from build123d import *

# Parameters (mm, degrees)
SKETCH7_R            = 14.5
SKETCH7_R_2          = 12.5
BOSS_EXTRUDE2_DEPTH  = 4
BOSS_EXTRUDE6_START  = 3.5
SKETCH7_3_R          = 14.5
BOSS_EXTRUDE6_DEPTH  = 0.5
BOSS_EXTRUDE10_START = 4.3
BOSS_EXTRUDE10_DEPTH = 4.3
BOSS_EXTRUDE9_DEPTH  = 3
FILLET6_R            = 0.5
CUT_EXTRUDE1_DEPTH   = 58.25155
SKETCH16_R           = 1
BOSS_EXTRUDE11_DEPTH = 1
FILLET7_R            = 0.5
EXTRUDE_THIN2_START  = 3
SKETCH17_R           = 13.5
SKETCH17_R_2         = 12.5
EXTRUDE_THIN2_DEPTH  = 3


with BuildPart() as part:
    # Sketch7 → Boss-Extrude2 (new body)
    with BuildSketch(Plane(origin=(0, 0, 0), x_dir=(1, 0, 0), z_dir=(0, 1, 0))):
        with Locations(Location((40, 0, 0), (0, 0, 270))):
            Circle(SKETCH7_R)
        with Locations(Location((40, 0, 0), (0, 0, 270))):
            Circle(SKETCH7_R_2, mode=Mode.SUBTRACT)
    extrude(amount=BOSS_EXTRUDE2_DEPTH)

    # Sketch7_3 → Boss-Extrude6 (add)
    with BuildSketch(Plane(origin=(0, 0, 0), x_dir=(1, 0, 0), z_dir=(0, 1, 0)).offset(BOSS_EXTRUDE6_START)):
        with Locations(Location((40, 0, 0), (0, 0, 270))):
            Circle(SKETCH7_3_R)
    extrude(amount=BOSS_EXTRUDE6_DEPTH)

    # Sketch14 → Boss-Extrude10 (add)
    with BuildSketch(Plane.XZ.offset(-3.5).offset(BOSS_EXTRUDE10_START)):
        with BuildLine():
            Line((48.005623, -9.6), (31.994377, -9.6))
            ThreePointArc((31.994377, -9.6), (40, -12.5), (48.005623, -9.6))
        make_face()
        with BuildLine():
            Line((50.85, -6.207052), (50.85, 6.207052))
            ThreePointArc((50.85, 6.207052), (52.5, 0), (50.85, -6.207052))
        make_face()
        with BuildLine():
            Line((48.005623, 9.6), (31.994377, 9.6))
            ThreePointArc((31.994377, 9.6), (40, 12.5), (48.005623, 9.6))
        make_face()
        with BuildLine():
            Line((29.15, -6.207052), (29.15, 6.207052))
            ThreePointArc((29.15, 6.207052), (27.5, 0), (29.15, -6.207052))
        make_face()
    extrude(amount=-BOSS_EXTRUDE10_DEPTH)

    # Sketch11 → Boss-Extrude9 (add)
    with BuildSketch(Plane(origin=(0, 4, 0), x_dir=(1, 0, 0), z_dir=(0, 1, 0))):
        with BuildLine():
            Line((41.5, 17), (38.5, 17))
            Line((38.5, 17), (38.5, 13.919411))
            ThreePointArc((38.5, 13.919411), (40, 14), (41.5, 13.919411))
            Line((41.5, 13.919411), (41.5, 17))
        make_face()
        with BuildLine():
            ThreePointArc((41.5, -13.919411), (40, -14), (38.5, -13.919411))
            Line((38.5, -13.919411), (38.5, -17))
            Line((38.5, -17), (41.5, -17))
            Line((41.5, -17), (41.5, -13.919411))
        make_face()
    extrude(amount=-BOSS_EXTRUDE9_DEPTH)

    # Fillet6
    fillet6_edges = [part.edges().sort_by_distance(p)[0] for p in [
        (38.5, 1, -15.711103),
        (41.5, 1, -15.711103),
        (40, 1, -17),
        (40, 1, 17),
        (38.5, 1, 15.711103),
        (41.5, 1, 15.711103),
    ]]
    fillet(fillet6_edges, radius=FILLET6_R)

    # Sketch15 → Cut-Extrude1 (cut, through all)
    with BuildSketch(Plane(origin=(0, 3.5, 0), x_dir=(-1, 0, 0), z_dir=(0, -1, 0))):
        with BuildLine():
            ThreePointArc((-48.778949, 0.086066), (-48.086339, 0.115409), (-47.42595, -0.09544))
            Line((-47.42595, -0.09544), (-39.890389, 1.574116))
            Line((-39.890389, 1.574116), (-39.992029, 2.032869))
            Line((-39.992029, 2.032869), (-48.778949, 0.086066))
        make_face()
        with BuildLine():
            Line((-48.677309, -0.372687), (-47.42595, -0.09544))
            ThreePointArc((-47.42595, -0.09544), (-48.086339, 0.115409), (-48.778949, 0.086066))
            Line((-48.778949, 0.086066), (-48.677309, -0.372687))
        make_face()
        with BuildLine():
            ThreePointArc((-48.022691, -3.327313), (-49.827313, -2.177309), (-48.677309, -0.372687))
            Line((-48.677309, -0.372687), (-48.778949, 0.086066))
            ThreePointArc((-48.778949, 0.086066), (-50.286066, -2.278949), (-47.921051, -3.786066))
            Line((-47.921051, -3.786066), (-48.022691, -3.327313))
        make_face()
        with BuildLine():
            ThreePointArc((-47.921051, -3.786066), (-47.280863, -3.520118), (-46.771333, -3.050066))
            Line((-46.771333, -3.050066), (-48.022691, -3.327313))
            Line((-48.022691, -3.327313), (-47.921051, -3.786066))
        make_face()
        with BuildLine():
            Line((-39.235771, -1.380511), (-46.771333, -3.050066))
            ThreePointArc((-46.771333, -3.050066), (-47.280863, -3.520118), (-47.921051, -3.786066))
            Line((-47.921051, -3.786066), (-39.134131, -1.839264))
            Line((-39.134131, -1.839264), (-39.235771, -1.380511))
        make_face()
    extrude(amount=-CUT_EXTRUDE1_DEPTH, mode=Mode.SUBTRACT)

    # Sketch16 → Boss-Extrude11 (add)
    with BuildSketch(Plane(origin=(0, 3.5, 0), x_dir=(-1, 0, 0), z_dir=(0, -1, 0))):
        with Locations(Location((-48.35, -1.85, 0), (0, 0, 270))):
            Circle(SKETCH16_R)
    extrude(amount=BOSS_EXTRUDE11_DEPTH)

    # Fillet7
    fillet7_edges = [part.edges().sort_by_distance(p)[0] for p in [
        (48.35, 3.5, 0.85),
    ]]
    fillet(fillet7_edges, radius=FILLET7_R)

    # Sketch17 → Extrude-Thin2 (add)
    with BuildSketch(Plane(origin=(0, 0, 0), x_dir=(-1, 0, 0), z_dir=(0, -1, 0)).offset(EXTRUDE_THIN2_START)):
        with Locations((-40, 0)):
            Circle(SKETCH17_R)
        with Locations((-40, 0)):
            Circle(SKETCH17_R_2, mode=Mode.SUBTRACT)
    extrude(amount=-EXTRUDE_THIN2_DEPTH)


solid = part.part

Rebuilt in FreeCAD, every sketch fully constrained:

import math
import FreeCAD as App
import Part
import Sketcher

V = App.Vector
Q = App.Units.Quantity


def edges_at(feature, points):
    """Names of the edges that pass closest to the given points."""
    edges = feature.Shape.Edges
    near = lambda p: min(range(len(edges)), key=lambda i: edges[i].distToShape(Part.Vertex(*p))[0])
    return sorted({f"Edge{near(p) + 1}" for p in points})

doc = App.newDocument("Part")
body = doc.addObject("PartDesign::Body", "Body")

# Sketch on XZ plane
sketch1 = body.newObject("Sketcher::SketchObject", "Sketch")
sketch1.AttachmentSupport = (doc.getObject("XZ_Plane"), [""])
sketch1.MapMode = "FlatFace"
sketch1.addGeometry(Part.Circle(V(40, 0, 0), V(0, 0, 1), 14), False)
sketch1.addGeometry(Part.Circle(V(40, 0, 0), V(0, 0, 1), 12), False)
sketch1.addConstraint(Sketcher.Constraint("Coincident", 1, 3, 0, 3))
sketch1.addConstraint(Sketcher.Constraint("PointOnObject", 0, 3, -1))
sketch1.addConstraint(Sketcher.Constraint("Diameter", 0, Q("29 mm")))
sketch1.addConstraint(Sketcher.Constraint("Diameter", 1, Q("25 mm")))
sketch1.addConstraint(Sketcher.Constraint("DistanceX", -1, 1, 0, 3, Q("40 mm")))
pad1 = body.newObject("PartDesign::Pad", "Pad")
pad1.Profile = sketch1
pad1.Length = 4
pad1.Reversed = True

# Sketch on XZ plane
sketch2 = body.newObject("Sketcher::SketchObject", "Sketch001")
sketch2.AttachmentSupport = (doc.getObject("XZ_Plane"), [""])
sketch2.MapMode = "FlatFace"
sketch2.AttachmentOffset = App.Placement(V(0, 0, -3.5), App.Rotation())
sketch2.addGeometry(Part.Circle(V(40, 0, 0), V(0, 0, 1), 14), False)
sketch2.addConstraint(Sketcher.Constraint("PointOnObject", 0, 3, -1))
sketch2.addConstraint(Sketcher.Constraint("Diameter", 0, Q("29 mm")))
sketch2.addConstraint(Sketcher.Constraint("DistanceX", -1, 1, 0, 3, Q("40 mm")))
pad2 = body.newObject("PartDesign::Pad", "Pad001")
pad2.Profile = sketch2
pad2.Length = 0.5
pad2.Reversed = True

# Sketch on XZ plane
sketch3 = body.newObject("Sketcher::SketchObject", "Sketch002")
sketch3.AttachmentSupport = (doc.getObject("XZ_Plane"), [""])
sketch3.MapMode = "FlatFace"
sketch3.AttachmentOffset = App.Placement(V(0, 0, 0.8), App.Rotation())
sketch3.addGeometry(Part.LineSegment(V(48, -10, 0), V(32, -10, 0)), False)
sketch3.addGeometry(Part.ArcOfCircle(Part.Circle(V(40, 0, 0), V(0, 0, 1), 12), math.radians(-130), math.radians(-50)), False)
sketch3.addGeometry(Part.LineSegment(V(51, 6, 0), V(51, -6, 0)), False)
sketch3.addGeometry(Part.ArcOfCircle(Part.Circle(V(40, 0, 0), V(0, 0, 1), 12), math.radians(-30), math.radians(30)), False)
sketch3.addGeometry(Part.LineSegment(V(32, 10, 0), V(48, 10, 0)), False)
sketch3.addGeometry(Part.ArcOfCircle(Part.Circle(V(40, 0, 0), V(0, 0, 1), 12), math.radians(50), math.radians(130)), False)
sketch3.addGeometry(Part.LineSegment(V(29, -6, 0), V(29, 6, 0)), False)
sketch3.addGeometry(Part.ArcOfCircle(Part.Circle(V(40, 0, 0), V(0, 0, 1), 12), math.radians(150), math.radians(210)), False)
sketch3.addConstraint(Sketcher.Constraint("Coincident", 0, 1, 1, 2))
sketch3.addConstraint(Sketcher.Constraint("Coincident", 1, 1, 0, 2))
sketch3.addConstraint(Sketcher.Constraint("Coincident", 2, 1, 3, 2))
sketch3.addConstraint(Sketcher.Constraint("Coincident", 3, 1, 2, 2))
sketch3.addConstraint(Sketcher.Constraint("Coincident", 4, 1, 5, 2))
sketch3.addConstraint(Sketcher.Constraint("Coincident", 5, 1, 4, 2))
sketch3.addConstraint(Sketcher.Constraint("Coincident", 6, 1, 7, 2))
sketch3.addConstraint(Sketcher.Constraint("Coincident", 7, 1, 6, 2))
sketch3.addConstraint(Sketcher.Constraint("Horizontal", 0))
sketch3.addConstraint(Sketcher.Constraint("Vertical", 2))
sketch3.addConstraint(Sketcher.Constraint("Horizontal", 4))
sketch3.addConstraint(Sketcher.Constraint("Vertical", 6))
sketch3.addConstraint(Sketcher.Constraint("Coincident", 3, 3, 1, 3))
sketch3.addConstraint(Sketcher.Constraint("Coincident", 5, 3, 1, 3))
sketch3.addConstraint(Sketcher.Constraint("Coincident", 7, 3, 1, 3))
sketch3.addConstraint(Sketcher.Constraint("Equal", 1, 3))
sketch3.addConstraint(Sketcher.Constraint("Equal", 3, 5))
sketch3.addConstraint(Sketcher.Constraint("Equal", 5, 7))
sketch3.addConstraint(Sketcher.Constraint("Symmetric", 1, 1, 4, 1, -1))
sketch3.addConstraint(Sketcher.Constraint("Horizontal", 3, 1, 6, 1))
sketch3.addConstraint(Sketcher.Constraint("Radius", 1, Q("12.5 mm")))
sketch3.addConstraint(Sketcher.Constraint("DistanceX", -1, 1, 1, 3, Q("40 mm")))
sketch3.addConstraint(Sketcher.Constraint("DistanceY", 0, 1, -1, 1, Q("9.6 mm")))
sketch3.addConstraint(Sketcher.Constraint("DistanceX", -1, 1, 2, 1, Q("50.85 mm")))
pad3 = body.newObject("PartDesign::Pad", "Pad002")
pad3.Profile = sketch3
pad3.Length = 4.3
pad3.Reversed = True

# Sketch on XZ plane
sketch4 = body.newObject("Sketcher::SketchObject", "Sketch003")
sketch4.AttachmentSupport = (doc.getObject("XZ_Plane"), [""])
sketch4.MapMode = "FlatFace"
sketch4.AttachmentOffset = App.Placement(V(0, 0, -4), App.Rotation())
sketch4.addGeometry(Part.LineSegment(V(41.5, -17, 0), V(38.5, -17, 0)), False)
sketch4.addGeometry(Part.LineSegment(V(38.5, -17, 0), V(38.5, -13.9, 0)), False)
sketch4.addGeometry(Part.ArcOfCircle(Part.Circle(V(40, 0, 0), V(0, 0, 1), 14), math.radians(-96.15), math.radians(-83.85)), False)
sketch4.addGeometry(Part.LineSegment(V(41.5, -13.9, 0), V(41.5, -17, 0)), False)
sketch4.addGeometry(Part.ArcOfCircle(Part.Circle(V(40, 0, 0), V(0, 0, 1), 14), math.radians(83.85), math.radians(96.15)), False)
sketch4.addGeometry(Part.LineSegment(V(38.5, 13.9, 0), V(38.5, 17, 0)), False)
sketch4.addGeometry(Part.LineSegment(V(38.5, 17, 0), V(41.5, 17, 0)), False)
sketch4.addGeometry(Part.LineSegment(V(41.5, 17, 0), V(41.5, 13.9, 0)), False)
sketch4.addConstraint(Sketcher.Constraint("Coincident", 0, 2, 1, 1))
sketch4.addConstraint(Sketcher.Constraint("Coincident", 1, 2, 2, 1))
sketch4.addConstraint(Sketcher.Constraint("Coincident", 2, 2, 3, 1))
sketch4.addConstraint(Sketcher.Constraint("Coincident", 3, 2, 0, 1))
sketch4.addConstraint(Sketcher.Constraint("Coincident", 4, 2, 5, 1))
sketch4.addConstraint(Sketcher.Constraint("Coincident", 5, 2, 6, 1))
sketch4.addConstraint(Sketcher.Constraint("Coincident", 6, 2, 7, 1))
sketch4.addConstraint(Sketcher.Constraint("Coincident", 7, 2, 4, 1))
sketch4.addConstraint(Sketcher.Constraint("Horizontal", 0))
sketch4.addConstraint(Sketcher.Constraint("Vertical", 1))
sketch4.addConstraint(Sketcher.Constraint("Vertical", 3))
sketch4.addConstraint(Sketcher.Constraint("Vertical", 5))
sketch4.addConstraint(Sketcher.Constraint("Horizontal", 6))
sketch4.addConstraint(Sketcher.Constraint("Vertical", 7))
sketch4.addConstraint(Sketcher.Constraint("Equal", 2, 4))
sketch4.addConstraint(Sketcher.Constraint("Symmetric", 2, 3, 4, 3, -1))
sketch4.addConstraint(Sketcher.Constraint("Symmetric", 0, 2, 5, 2, -1))
sketch4.addConstraint(Sketcher.Constraint("Horizontal", 1, 2, 2, 2))
sketch4.addConstraint(Sketcher.Constraint("Horizontal", 4, 2, 7, 2))
sketch4.addConstraint(Sketcher.Constraint("DistanceX", 0, 2, 0, 1, Q("3 mm")))
sketch4.addConstraint(Sketcher.Constraint("DistanceX", -1, 1, 2, 3, Q("40 mm")))
sketch4.addConstraint(Sketcher.Constraint("DistanceY", 0, 2, -1, 1, Q("17 mm")))
sketch4.addConstraint(Sketcher.Constraint("Radius", 2, Q("14.000016 mm")))
sketch4.addConstraint(Sketcher.Constraint("DistanceY", 1, 1, 1, 2, Q("3.080589 mm")))
pad4 = body.newObject("PartDesign::Pad", "Pad003")
pad4.Profile = sketch4
pad4.Length = 3
doc.recompute()

fillet = body.newObject("PartDesign::Fillet", "Fillet")
fillet.Base = (pad4, edges_at(pad4, [
    (38.5, 1, -15.711),
    (41.5, 1, -15.711),
    (40, 1, -17),
    (40, 1, 17),
    (38.5, 1, 15.711),
    (41.5, 1, 15.711),
]))
fillet.Radius = 0.5

# Sketch on XZ plane
sketch5 = body.newObject("Sketcher::SketchObject", "Sketch004")
sketch5.AttachmentSupport = (doc.getObject("XZ_Plane"), [""])
sketch5.MapMode = "FlatFace"
sketch5.AttachmentOffset = App.Placement(V(0, 0, -3.5), App.Rotation())
sketch5.addGeometry(Part.LineSegment(V(47.43, 0.1, 0), V(39.89, -1.57, 0)), False)
sketch5.addGeometry(Part.LineSegment(V(39.89, -1.57, 0), V(39.99, -2.03, 0)), False)
sketch5.addGeometry(Part.LineSegment(V(39.99, -2.03, 0), V(48.78, -0.09, 0)), False)
sketch5.addGeometry(Part.ArcOfCircle(Part.Circle(V(48.35, 1.85, 0), V(0, 0, 1), 1.98), math.radians(-78), math.radians(102)), False)
sketch5.addGeometry(Part.LineSegment(V(47.92, 3.79, 0), V(39.13, 1.84, 0)), False)
sketch5.addGeometry(Part.LineSegment(V(39.13, 1.84, 0), V(39.24, 1.38, 0)), False)
sketch5.addGeometry(Part.LineSegment(V(39.24, 1.38, 0), V(46.77, 3.05, 0)), False)
sketch5.addGeometry(Part.LineSegment(V(46.77, 3.05, 0), V(48.02, 3.33, 0)), False)
sketch5.addGeometry(Part.ArcOfCircle(Part.Circle(V(48.35, 1.85, 0), V(0, 0, 1), 1.51), math.radians(-78), math.radians(102)), False)
sketch5.addGeometry(Part.LineSegment(V(48.68, 0.37, 0), V(47.43, 0.1, 0)), False)
sketch5.addConstraint(Sketcher.Constraint("Coincident", 0, 2, 1, 1))
sketch5.addConstraint(Sketcher.Constraint("Coincident", 1, 2, 2, 1))
sketch5.addConstraint(Sketcher.Constraint("Tangent", 2, 2, 3, 1))
sketch5.addConstraint(Sketcher.Constraint("Tangent", 3, 2, 4, 1))
sketch5.addConstraint(Sketcher.Constraint("Coincident", 4, 2, 5, 1))
sketch5.addConstraint(Sketcher.Constraint("Coincident", 5, 2, 6, 1))
sketch5.addConstraint(Sketcher.Constraint("Coincident", 6, 2, 7, 1))
sketch5.addConstraint(Sketcher.Constraint("Tangent", 7, 2, 8, 2))
sketch5.addConstraint(Sketcher.Constraint("Tangent", 8, 1, 9, 1))
sketch5.addConstraint(Sketcher.Constraint("Coincident", 9, 2, 0, 1))
sketch5.addConstraint(Sketcher.Constraint("Coincident", 8, 3, 3, 3))
sketch5.addConstraint(Sketcher.Constraint("Perpendicular", 0, 1))
sketch5.addConstraint(Sketcher.Constraint("Perpendicular", 1, 2))
sketch5.addConstraint(Sketcher.Constraint("Parallel", 2, 4))
sketch5.addConstraint(Sketcher.Constraint("Perpendicular", 4, 5))
sketch5.addConstraint(Sketcher.Constraint("Perpendicular", 5, 6))
sketch5.addConstraint(Sketcher.Constraint("Parallel", 6, 7))
sketch5.addConstraint(Sketcher.Constraint("Parallel", 7, 9))
sketch5.addConstraint(Sketcher.Constraint("Equal", 2, 4))
sketch5.addConstraint(Sketcher.Constraint("Equal", 0, 6))
sketch5.addConstraint(Sketcher.Constraint("Distance", 2, Q("9 mm")))
sketch5.addConstraint(Sketcher.Constraint("DistanceX", -1, 1, 3, 3, Q("48.35 mm")))
sketch5.addConstraint(Sketcher.Constraint("DistanceY", -1, 1, 3, 3, Q("1.85 mm")))
sketch5.addConstraint(Sketcher.Constraint("Radius", 3, Q("1.983015 mm")))
sketch5.addConstraint(Sketcher.Constraint("Radius", 8, Q("1.513137 mm")))
sketch5.addConstraint(Sketcher.Constraint("DistanceY", 6, 2, 3, 2, Q("0.736 mm")))
sketch5.addConstraint(Sketcher.Constraint("DistanceX", 9, 2, 2, 2, Q("1.352999 mm")))
pocket1 = body.newObject("PartDesign::Pocket", "Pocket")
pocket1.Profile = sketch5
pocket1.Type = "ThroughAll"

# Sketch on XZ plane
sketch6 = body.newObject("Sketcher::SketchObject", "Sketch005")
sketch6.AttachmentSupport = (doc.getObject("XZ_Plane"), [""])
sketch6.MapMode = "FlatFace"
sketch6.AttachmentOffset = App.Placement(V(0, 0, -3.5), App.Rotation())
sketch6.addGeometry(Part.Circle(V(48.4, 1.9, 0), V(0, 0, 1), 1), False)
sketch6.addConstraint(Sketcher.Constraint("Diameter", 0, Q("2 mm")))
sketch6.addConstraint(Sketcher.Constraint("DistanceX", -1, 1, 0, 3, Q("48.35 mm")))
sketch6.addConstraint(Sketcher.Constraint("DistanceY", -1, 1, 0, 3, Q("1.85 mm")))
pad5 = body.newObject("PartDesign::Pad", "Pad004")
pad5.Profile = sketch6
pad5.Length = 1
doc.recompute()

fillet2 = body.newObject("PartDesign::Fillet", "Fillet001")
fillet2.Base = (pad5, edges_at(pad5, [(48.35, 3.5, 0.85)]))
fillet2.Radius = 0.5

# Sketch on XZ plane
sketch7 = body.newObject("Sketcher::SketchObject", "Sketch006")
sketch7.AttachmentSupport = (doc.getObject("XZ_Plane"), [""])
sketch7.MapMode = "FlatFace"
sketch7.AttachmentOffset = App.Placement(V(0, 0, 3), App.Rotation())
sketch7.addGeometry(Part.Circle(V(40, 0, 0), V(0, 0, 1), 14), False)
sketch7.addGeometry(Part.Circle(V(40, 0, 0), V(0, 0, 1), 12), False)
sketch7.addConstraint(Sketcher.Constraint("Coincident", 1, 3, 0, 3))
sketch7.addConstraint(Sketcher.Constraint("PointOnObject", 0, 3, -1))
sketch7.addConstraint(Sketcher.Constraint("Diameter", 0, Q("27 mm")))
sketch7.addConstraint(Sketcher.Constraint("Diameter", 1, Q("25 mm")))
sketch7.addConstraint(Sketcher.Constraint("DistanceX", -1, 1, 0, 3, Q("40 mm")))
pad6 = body.newObject("PartDesign::Pad", "Pad005")
pad6.Profile = sketch7
pad6.Length = 3
pad6.Reversed = True

doc.recompute()
